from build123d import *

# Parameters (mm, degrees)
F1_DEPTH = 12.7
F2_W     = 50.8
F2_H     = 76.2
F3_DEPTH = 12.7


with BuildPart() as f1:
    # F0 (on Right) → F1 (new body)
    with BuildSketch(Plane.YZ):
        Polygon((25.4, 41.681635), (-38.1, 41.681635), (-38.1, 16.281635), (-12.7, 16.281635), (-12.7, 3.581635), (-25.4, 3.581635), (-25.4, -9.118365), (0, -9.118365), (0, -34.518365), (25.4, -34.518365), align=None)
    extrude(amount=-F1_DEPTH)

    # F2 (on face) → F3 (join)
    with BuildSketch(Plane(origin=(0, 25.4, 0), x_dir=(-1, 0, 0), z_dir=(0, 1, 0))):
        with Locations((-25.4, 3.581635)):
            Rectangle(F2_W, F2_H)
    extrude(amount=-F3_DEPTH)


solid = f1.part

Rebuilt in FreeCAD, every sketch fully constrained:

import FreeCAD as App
import Part
import Sketcher
Q = App.Units.Quantity

doc = App.newDocument("Part")
params = doc.addObject("Spreadsheet::Sheet", "Params")
for row, (alias, value) in enumerate([
    ("sketch1_width", "1 in"),
    ("sketch1_height", "3 in"),
    ("pad1_length", "0.5 in"),
    ("sketch2_width", "2 in"),
    ("sketch2_height", "3 in"),
    ("pad2_length", "0.5 in"),
], start=1):
    params.set(f"A{row}", alias)
    params.set(f"B{row}", "=" + value)
    params.setAlias(f"B{row}", alias)

body = doc.addObject("PartDesign::Body", "Body")

# Sketch on YZ plane
sketch1 = doc.addObject("Sketcher::SketchObject", "Sketch")
body.addObject(sketch1)
sketch1.AttachmentSupport = (doc.YZ_Plane, [""])
sketch1.MapMode = "FlatFace"
sketch1.addGeometry([
    Part.LineSegment(App.Vector(25, 42, 0), App.Vector(-38, 42, 0)),  # 0
    Part.LineSegment(App.Vector(-38, 42, 0), App.Vector(-38, 16, 0)),  # 1
    Part.LineSegment(App.Vector(-38, 16, 0), App.Vector(-13, 16, 0)),  # 2
    Part.LineSegment(App.Vector(-13, 16, 0), App.Vector(-13, 4, 0)),  # 3
    Part.LineSegment(App.Vector(-13, 4, 0), App.Vector(-25, 4, 0)),  # 4
    Part.LineSegment(App.Vector(-25, 4, 0), App.Vector(-25, -9, 0)),  # 5
    Part.LineSegment(App.Vector(-25, -9, 0), App.Vector(0, -9, 0)),  # 6
    Part.LineSegment(App.Vector(0, -9, 0), App.Vector(0, -35, 0)),  # 7
    Part.LineSegment(App.Vector(0, -35, 0), App.Vector(25, -35, 0)),  # 8
    Part.LineSegment(App.Vector(25, -35, 0), App.Vector(25, 42, 0)),  # 9
], False)
sketch1.addConstraint([
    Sketcher.Constraint("Coincident", 0, 2, 1, 1),
    Sketcher.Constraint("Coincident", 1, 2, 2, 1),
    Sketcher.Constraint("Coincident", 2, 2, 3, 1),
    Sketcher.Constraint("Coincident", 3, 2, 4, 1),
    Sketcher.Constraint("Coincident", 4, 2, 5, 1),
    Sketcher.Constraint("Coincident", 5, 2, 6, 1),
    Sketcher.Constraint("Coincident", 6, 2, 7, 1),
    Sketcher.Constraint("Coincident", 7, 2, 8, 1),
    Sketcher.Constraint("Coincident", 8, 2, 9, 1),
    Sketcher.Constraint("Coincident", 9, 2, 0, 1),
    Sketcher.Constraint("Horizontal", 0),
    Sketcher.Constraint("Vertical", 1),
    Sketcher.Constraint("Horizontal", 2),
    Sketcher.Constraint("Vertical", 3),
    Sketcher.Constraint("Horizontal", 4),
    Sketcher.Constraint("Vertical", 5),
    Sketcher.Constraint("Horizontal", 6),
    Sketcher.Constraint("Vertical", 7),
    Sketcher.Constraint("Horizontal", 8),
    Sketcher.Constraint("Vertical", 9),
    Sketcher.Constraint("PointOnObject", 6, 2, -2),
    Sketcher.Constraint("Equal", 2, 6),
    Sketcher.Constraint("Equal", 6, 8),
    Sketcher.Constraint("Equal", 8, 1),
    Sketcher.Constraint("Equal", 4, 3),
    Sketcher.Constraint("Equal", 3, 5),
    Sketcher.Constraint("Equal", 1, 7),
    Sketcher.Constraint("DistanceX", 2, 1, 2, 2, Q("1 in")),
    Sketcher.Constraint("DistanceY", 9, 1, 9, 2, Q("3 in")),
    Sketcher.Constraint("DistanceY", -1, 1, 0, 2, Q("41.681635 mm")),
])
sketch1.setExpression("Constraints[27]", "Params.sketch1_width")
sketch1.setExpression("Constraints[28]", "Params.sketch1_height")
pad1 = doc.addObject("PartDesign::Pad", "Pad")
body.addObject(pad1)
pad1.Profile = sketch1
pad1.setExpression("Length", "Params.pad1_length")
pad1.Reversed = True

# Sketch on XZ plane
sketch2 = doc.addObject("Sketcher::SketchObject", "Sketch001")
body.addObject(sketch2)
sketch2.AttachmentSupport = (doc.XZ_Plane, [""])
sketch2.MapMode = "FlatFace"
sketch2.AttachmentOffset = App.Placement(App.Vector(0, 0, -1 * 25.4), App.Rotation())
sketch2.addGeometry([
    Part.LineSegment(App.Vector(51, 42, 0), App.Vector(51, -35, 0)),
    Part.LineSegment(App.Vector(51, -35, 0), App.Vector(0, -35, 0)),
    Part.LineSegment(App.Vector(0, -35, 0), App.Vector(0, 42, 0)),
    Part.LineSegment(App.Vector(0, 42, 0), App.Vector(51, 42, 0)),
], False)
sketch2.addConstraint([
    Sketcher.Constraint("Coincident", 0, 2, 1, 1),
    Sketcher.Constraint("Coincident", 1, 2, 2, 1),
    Sketcher.Constraint("Coincident", 2, 2, 3, 1),
    Sketcher.Constraint("Coincident", 3, 2, 0, 1),
    Sketcher.Constraint("Vertical", 0),
    Sketcher.Constraint("Horizontal", 1),
    Sketcher.Constraint("Vertical", 2),
    Sketcher.Constraint("Horizontal", 3),
    Sketcher.Constraint("PointOnObject", 1, 2, -2),
    Sketcher.Constraint("DistanceX", 1, 2, 1, 1, Q("2 in")),
    Sketcher.Constraint("DistanceY", 0, 2, 0, 1, Q("3 in")),
    Sketcher.Constraint("DistanceY", 0, 2, -1, 1, Q("34.518365 mm")),
])
sketch2.setExpression("Constraints[9]", "Params.sketch2_width")
sketch2.setExpression("Constraints[10]", "Params.sketch2_height")
pad2 = doc.addObject("PartDesign::Pad", "Pad001")
body.addObject(pad2)
pad2.Profile = sketch2
pad2.setExpression("Length", "Params.pad2_length")

doc.recompute()
